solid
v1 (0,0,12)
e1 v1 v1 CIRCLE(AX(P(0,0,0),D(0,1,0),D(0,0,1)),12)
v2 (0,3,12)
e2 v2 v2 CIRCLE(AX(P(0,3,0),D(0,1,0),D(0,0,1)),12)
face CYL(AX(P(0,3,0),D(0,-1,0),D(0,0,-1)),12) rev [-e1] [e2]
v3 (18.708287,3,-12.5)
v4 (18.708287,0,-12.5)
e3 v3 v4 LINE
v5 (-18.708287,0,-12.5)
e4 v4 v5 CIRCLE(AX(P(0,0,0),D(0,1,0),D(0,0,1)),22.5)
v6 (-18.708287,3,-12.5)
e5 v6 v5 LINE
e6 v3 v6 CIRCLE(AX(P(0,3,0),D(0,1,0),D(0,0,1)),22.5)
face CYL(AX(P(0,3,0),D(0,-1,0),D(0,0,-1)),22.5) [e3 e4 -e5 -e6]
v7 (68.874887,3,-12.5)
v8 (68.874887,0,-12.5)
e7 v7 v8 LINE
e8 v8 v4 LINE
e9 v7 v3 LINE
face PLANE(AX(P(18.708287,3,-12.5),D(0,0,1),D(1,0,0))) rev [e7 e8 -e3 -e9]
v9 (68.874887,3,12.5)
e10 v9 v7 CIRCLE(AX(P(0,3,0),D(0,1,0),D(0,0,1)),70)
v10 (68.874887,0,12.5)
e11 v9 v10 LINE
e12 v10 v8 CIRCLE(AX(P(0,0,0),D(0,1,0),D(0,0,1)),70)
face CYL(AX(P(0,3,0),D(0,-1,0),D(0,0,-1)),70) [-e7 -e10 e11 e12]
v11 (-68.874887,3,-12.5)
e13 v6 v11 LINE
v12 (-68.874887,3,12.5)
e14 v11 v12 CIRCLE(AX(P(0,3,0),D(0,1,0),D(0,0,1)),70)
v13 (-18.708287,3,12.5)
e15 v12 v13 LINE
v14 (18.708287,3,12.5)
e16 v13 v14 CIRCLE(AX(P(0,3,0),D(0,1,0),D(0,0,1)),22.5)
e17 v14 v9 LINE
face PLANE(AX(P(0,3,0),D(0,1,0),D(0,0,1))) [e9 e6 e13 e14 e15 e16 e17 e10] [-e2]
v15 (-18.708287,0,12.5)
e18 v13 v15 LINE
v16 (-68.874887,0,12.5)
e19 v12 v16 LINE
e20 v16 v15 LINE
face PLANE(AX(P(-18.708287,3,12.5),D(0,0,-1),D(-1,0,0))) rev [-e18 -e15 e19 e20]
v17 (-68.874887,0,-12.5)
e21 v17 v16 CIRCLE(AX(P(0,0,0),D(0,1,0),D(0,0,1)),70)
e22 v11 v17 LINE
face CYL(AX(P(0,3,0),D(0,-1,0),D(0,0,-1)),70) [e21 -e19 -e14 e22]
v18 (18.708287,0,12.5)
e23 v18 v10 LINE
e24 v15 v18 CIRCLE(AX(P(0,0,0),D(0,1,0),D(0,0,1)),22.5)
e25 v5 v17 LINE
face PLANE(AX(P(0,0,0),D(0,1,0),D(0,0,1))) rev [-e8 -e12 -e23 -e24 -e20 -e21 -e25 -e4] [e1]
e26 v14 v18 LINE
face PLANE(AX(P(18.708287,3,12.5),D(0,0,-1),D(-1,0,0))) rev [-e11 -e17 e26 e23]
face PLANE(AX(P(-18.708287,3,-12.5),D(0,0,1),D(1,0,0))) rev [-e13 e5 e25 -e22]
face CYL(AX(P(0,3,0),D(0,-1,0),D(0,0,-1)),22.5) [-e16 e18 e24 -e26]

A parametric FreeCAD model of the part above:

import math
import FreeCAD as App
import Part
import Sketcher

V = App.Vector
Q = App.Units.Quantity

doc = App.newDocument("Part")
body = doc.addObject("PartDesign::Body", "Body")

# Sketch on XZ plane
sketch1 = doc.addObject("Sketcher::SketchObject", "Sketch")
body.addObject(sketch1)
sketch1.AttachmentSupport = (doc.XZ_Plane, [""])
sketch1.MapMode = "FlatFace"
sketch1.addGeometry(Part.LineSegment(V(-19, -12, 0), V(-69, -12, 0)), False)
sketch1.addGeometry(Part.ArcOfCircle(Part.Circle(V(0, 0, 0), V(0, 0, 1), 70), math.radians(170), math.radians(190)), False)
sketch1.addGeometry(Part.LineSegment(V(-69, 12, 0), V(-19, 12, 0)), False)
sketch1.addGeometry(Part.ArcOfCircle(Part.Circle(V(0, 0, 0), V(0, 0, 1), 22), math.radians(34), math.radians(146)), False)
sketch1.addGeometry(Part.LineSegment(V(19, 12, 0), V(69, 12, 0)), False)
sketch1.addGeometry(Part.ArcOfCircle(Part.Circle(V(0, 0, 0), V(0, 0, 1), 70), math.radians(-10), math.radians(10)), False)
sketch1.addGeometry(Part.LineSegment(V(69, -12, 0), V(19, -12, 0)), False)
sketch1.addGeometry(Part.ArcOfCircle(Part.Circle(V(0, 0, 0), V(0, 0, 1), 22), math.radians(-146), math.radians(-34)), False)
sketch1.addGeometry(Part.Circle(V(0, 0, 0), V(0, 0, 1), 12), False)
sketch1.addConstraint(Sketcher.Constraint("Coincident", 0, 2, 1, 2))
sketch1.addConstraint(Sketcher.Constraint("Coincident", 1, 1, 2, 1))
sketch1.addConstraint(Sketcher.Constraint("Coincident", 2, 2, 3, 2))
sketch1.addConstraint(Sketcher.Constraint("Coincident", 3, 1, 4, 1))
sketch1.addConstraint(Sketcher.Constraint("Coincident", 4, 2, 5, 2))
sketch1.addConstraint(Sketcher.Constraint("Coincident", 5, 1, 6, 1))
sketch1.addConstraint(Sketcher.Constraint("Coincident", 6, 2, 7, 2))
sketch1.addConstraint(Sketcher.Constraint("Coincident", 7, 1, 0, 1))
sketch1.addConstraint(Sketcher.Constraint("Horizontal", 0))
sketch1.addConstraint(Sketcher.Constraint("Horizontal", 2))
sketch1.addConstraint(Sketcher.Constraint("Horizontal", 4))
sketch1.addConstraint(Sketcher.Constraint("Horizontal", 6))
sketch1.addConstraint(Sketcher.Constraint("Coincident", 1, 3, -1, 1))
sketch1.addConstraint(Sketcher.Constraint("Coincident", 3, 3, -1, 1))
sketch1.addConstraint(Sketcher.Constraint("Coincident", 5, 3, -1, 1))
sketch1.addConstraint(Sketcher.Constraint("Coincident", 7, 3, -1, 1))
sketch1.addConstraint(Sketcher.Constraint("Coincident", 8, 3, -1, 1))
sketch1.addConstraint(Sketcher.Constraint("Equal", 1, 5))
sketch1.addConstraint(Sketcher.Constraint("Equal", 3, 7))
sketch1.addConstraint(Sketcher.Constraint("Horizontal", 2, 2, 3, 1))
sketch1.addConstraint(Sketcher.Constraint("Horizontal", 0, 2, 5, 1))
sketch1.addConstraint(Sketcher.Constraint("Vertical", 0, 2, 1, 1))
sketch1.addConstraint(Sketcher.Constraint("Diameter", 8, Q("24 mm")))
sketch1.addConstraint(Sketcher.Constraint("Radius", 1, Q("70 mm")))
sketch1.addConstraint(Sketcher.Constraint("Radius", 3, Q("22.5 mm")))
sketch1.addConstraint(Sketcher.Constraint("DistanceY", 0, 2, 1, 1, Q("25 mm")))
pad1 = doc.addObject("PartDesign::Pad", "Pad")
body.addObject(pad1)
pad1.Profile = sketch1
pad1.Length = 3
pad1.Reversed = True

doc.recompute()
